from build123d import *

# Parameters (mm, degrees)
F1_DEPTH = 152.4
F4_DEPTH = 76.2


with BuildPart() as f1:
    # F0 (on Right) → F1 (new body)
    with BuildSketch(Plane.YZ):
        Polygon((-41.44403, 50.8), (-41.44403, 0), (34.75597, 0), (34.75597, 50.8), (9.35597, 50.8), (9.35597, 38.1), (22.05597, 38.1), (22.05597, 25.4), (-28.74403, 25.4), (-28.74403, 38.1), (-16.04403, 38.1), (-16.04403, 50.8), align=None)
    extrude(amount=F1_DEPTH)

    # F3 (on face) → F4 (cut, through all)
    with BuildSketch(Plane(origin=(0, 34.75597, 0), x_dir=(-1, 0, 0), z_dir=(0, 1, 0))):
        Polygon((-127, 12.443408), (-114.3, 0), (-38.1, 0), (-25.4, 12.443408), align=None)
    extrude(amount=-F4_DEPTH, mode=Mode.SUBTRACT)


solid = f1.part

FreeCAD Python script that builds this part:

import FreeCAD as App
import Part
import Sketcher
from FreeCAD import Vector
Q = App.Units.Quantity

doc = App.newDocument("Part")
params = doc.addObject("Spreadsheet::Sheet", "Params")
for row, (alias, value) in enumerate([
    ("sketch1_width", "3 in"),
    ("sketch1_width2", "1 in"),
    ("sketch1_width3", "2 in"),
    ("pad1_length", "6 in"),
    ("sketch2_width", "3 in"),
    ("sketch2_width2", "4 in"),
    ("sketch2_length", "0.7 in"),
], start=1):
    params.set(f"A{row}", alias)
    params.set(f"B{row}", "=" + value)
    params.setAlias(f"B{row}", alias)

body = doc.addObject("PartDesign::Body", "Body")

sketch1 = doc.addObject("Sketcher::SketchObject", "Sketch")
body.addObject(sketch1)
sketch1.AttachmentSupport = (doc.YZ_Plane, [""])
sketch1.MapMode = "FlatFace"
sketch1.addGeometry(Part.LineSegment(Vector(-41, 51, 0), Vector(-41, 0, 0)), False)
sketch1.addGeometry(Part.LineSegment(Vector(-41, 0, 0), Vector(35, 0, 0)), False)
sketch1.addGeometry(Part.LineSegment(Vector(35, 0, 0), Vector(35, 51, 0)), False)
sketch1.addGeometry(Part.LineSegment(Vector(35, 51, 0), Vector(9, 51, 0)), False)
sketch1.addGeometry(Part.LineSegment(Vector(9, 51, 0), Vector(9, 38, 0)), False)
sketch1.addGeometry(Part.LineSegment(Vector(9, 38, 0), Vector(22, 38, 0)), False)
sketch1.addGeometry(Part.LineSegment(Vector(22, 38, 0), Vector(22, 25, 0)), False)
sketch1.addGeometry(Part.LineSegment(Vector(22, 25, 0), Vector(-29, 25, 0)), False)
sketch1.addGeometry(Part.LineSegment(Vector(-29, 25, 0), Vector(-29, 38, 0)), False)
sketch1.addGeometry(Part.LineSegment(Vector(-29, 38, 0), Vector(-16, 38, 0)), False)
sketch1.addGeometry(Part.LineSegment(Vector(-16, 38, 0), Vector(-16, 51, 0)), False)
sketch1.addGeometry(Part.LineSegment(Vector(-16, 51, 0), Vector(-41, 51, 0)), False)
sketch1.addConstraint(Sketcher.Constraint("Coincident", 0, 2, 1, 1))
sketch1.addConstraint(Sketcher.Constraint("Coincident", 1, 2, 2, 1))
sketch1.addConstraint(Sketcher.Constraint("Coincident", 2, 2, 3, 1))
sketch1.addConstraint(Sketcher.Constraint("Coincident", 3, 2, 4, 1))
sketch1.addConstraint(Sketcher.Constraint("Coincident", 4, 2, 5, 1))
sketch1.addConstraint(Sketcher.Constraint("Coincident", 5, 2, 6, 1))
sketch1.addConstraint(Sketcher.Constraint("Coincident", 6, 2, 7, 1))
sketch1.addConstraint(Sketcher.Constraint("Coincident", 7, 2, 8, 1))
sketch1.addConstraint(Sketcher.Constraint("Coincident", 8, 2, 9, 1))
sketch1.addConstraint(Sketcher.Constraint("Coincident", 9, 2, 10, 1))
sketch1.addConstraint(Sketcher.Constraint("Coincident", 10, 2, 11, 1))
sketch1.addConstraint(Sketcher.Constraint("Coincident", 11, 2, 0, 1))
sketch1.addConstraint(Sketcher.Constraint("Vertical", 0))
sketch1.addConstraint(Sketcher.Constraint("Horizontal", 1))
sketch1.addConstraint(Sketcher.Constraint("Vertical", 2))
sketch1.addConstraint(Sketcher.Constraint("Horizontal", 3))
sketch1.addConstraint(Sketcher.Constraint("Vertical", 4))
sketch1.addConstraint(Sketcher.Constraint("Horizontal", 5))
sketch1.addConstraint(Sketcher.Constraint("Vertical", 6))
sketch1.addConstraint(Sketcher.Constraint("Horizontal", 7))
sketch1.addConstraint(Sketcher.Constraint("Vertical", 8))
sketch1.addConstraint(Sketcher.Constraint("Horizontal", 9))
sketch1.addConstraint(Sketcher.Constraint("Vertical", 10))
sketch1.addConstraint(Sketcher.Constraint("Horizontal", 11))
sketch1.addConstraint(Sketcher.Constraint("PointOnObject", 0, 2, -1))
sketch1.addConstraint(Sketcher.Constraint("Horizontal", 5, 2, 8, 2))
sketch1.addConstraint(Sketcher.Constraint("Horizontal", 3, 2, 10, 2))
sketch1.addConstraint(Sketcher.Constraint("Equal", 5, 9))
sketch1.addConstraint(Sketcher.Constraint("Equal", 3, 11))
sketch1.addConstraint(Sketcher.Constraint("Equal", 7, 0))
sketch1.addConstraint(Sketcher.Constraint("Equal", 9, 4))
sketch1.addConstraint(Sketcher.Constraint("Equal", 4, 6))
sketch1.addConstraint(Sketcher.Constraint("DistanceX", 1, 1, 1, 2, Q("3 in")))
sketch1.addConstraint(Sketcher.Constraint("DistanceX", 3, 2, 3, 1, Q("1 in")))
sketch1.addConstraint(Sketcher.Constraint("DistanceX", 7, 2, 7, 1, Q("2 in")))
sketch1.addConstraint(Sketcher.Constraint("DistanceX", 0, 2, -1, 1, Q("41.44403 mm")))
sketch1.setExpression("Constraints[32]", "Params.sketch1_width")
sketch1.setExpression("Constraints[33]", "Params.sketch1_width2")
sketch1.setExpression("Constraints[34]", "Params.sketch1_width3")
pad1 = doc.addObject("PartDesign::Pad", "Pad")
body.addObject(pad1)
pad1.Profile = sketch1
pad1.setExpression("Length", "Params.pad1_length")

sketch2 = doc.addObject("Sketcher::SketchObject", "Sketch001")
body.addObject(sketch2)
sketch2.AttachmentSupport = (doc.XZ_Plane, [""])
sketch2.MapMode = "FlatFace"
sketch2.AttachmentOffset = App.Placement(Vector(0, 0, -34.75597), App.Rotation())
sketch2.addGeometry(Part.LineSegment(Vector(127, 12, 0), Vector(114, 0, 0)), False)
sketch2.addGeometry(Part.LineSegment(Vector(114, 0, 0), Vector(38, 0, 0)), False)
sketch2.addGeometry(Part.LineSegment(Vector(38, 0, 0), Vector(25, 12, 0)), False)
sketch2.addGeometry(Part.LineSegment(Vector(25, 12, 0), Vector(127, 12, 0)), False)
sketch2.addConstraint(Sketcher.Constraint("Coincident", 0, 2, 1, 1))
sketch2.addConstraint(Sketcher.Constraint("Coincident", 1, 2, 2, 1))
sketch2.addConstraint(Sketcher.Constraint("Coincident", 2, 2, 3, 1))
sketch2.addConstraint(Sketcher.Constraint("Coincident", 3, 2, 0, 1))
sketch2.addConstraint(Sketcher.Constraint("Horizontal", 1))
sketch2.addConstraint(Sketcher.Constraint("Horizontal", 3))
sketch2.addConstraint(Sketcher.Constraint("PointOnObject", 0, 2, -1))
sketch2.addConstraint(Sketcher.Constraint("Equal", 0, 2))
sketch2.addConstraint(Sketcher.Constraint("DistanceX", 1, 2, 1, 1, Q("3 in")))
sketch2.addConstraint(Sketcher.Constraint("DistanceX", 3, 1, 3, 2, Q("4 in")))
sketch2.addConstraint(Sketcher.Constraint("DistanceX", -1, 1, 2, 2, Q("1 in")))
sketch2.addConstraint(Sketcher.Constraint("Distance", 0, Q("0.7 in")))
sketch2.setExpression("Constraints[8]", "Params.sketch2_width")
sketch2.setExpression("Constraints[9]", "Params.sketch2_width2")
sketch2.setExpression("Constraints[11]", "Params.sketch2_length")
pocket1 = doc.addObject("PartDesign::Pocket", "Pocket")
body.addObject(pocket1)
pocket1.Profile = sketch2
pocket1.Type = "ThroughAll"
pocket1.Reversed = True

doc.recompute()
